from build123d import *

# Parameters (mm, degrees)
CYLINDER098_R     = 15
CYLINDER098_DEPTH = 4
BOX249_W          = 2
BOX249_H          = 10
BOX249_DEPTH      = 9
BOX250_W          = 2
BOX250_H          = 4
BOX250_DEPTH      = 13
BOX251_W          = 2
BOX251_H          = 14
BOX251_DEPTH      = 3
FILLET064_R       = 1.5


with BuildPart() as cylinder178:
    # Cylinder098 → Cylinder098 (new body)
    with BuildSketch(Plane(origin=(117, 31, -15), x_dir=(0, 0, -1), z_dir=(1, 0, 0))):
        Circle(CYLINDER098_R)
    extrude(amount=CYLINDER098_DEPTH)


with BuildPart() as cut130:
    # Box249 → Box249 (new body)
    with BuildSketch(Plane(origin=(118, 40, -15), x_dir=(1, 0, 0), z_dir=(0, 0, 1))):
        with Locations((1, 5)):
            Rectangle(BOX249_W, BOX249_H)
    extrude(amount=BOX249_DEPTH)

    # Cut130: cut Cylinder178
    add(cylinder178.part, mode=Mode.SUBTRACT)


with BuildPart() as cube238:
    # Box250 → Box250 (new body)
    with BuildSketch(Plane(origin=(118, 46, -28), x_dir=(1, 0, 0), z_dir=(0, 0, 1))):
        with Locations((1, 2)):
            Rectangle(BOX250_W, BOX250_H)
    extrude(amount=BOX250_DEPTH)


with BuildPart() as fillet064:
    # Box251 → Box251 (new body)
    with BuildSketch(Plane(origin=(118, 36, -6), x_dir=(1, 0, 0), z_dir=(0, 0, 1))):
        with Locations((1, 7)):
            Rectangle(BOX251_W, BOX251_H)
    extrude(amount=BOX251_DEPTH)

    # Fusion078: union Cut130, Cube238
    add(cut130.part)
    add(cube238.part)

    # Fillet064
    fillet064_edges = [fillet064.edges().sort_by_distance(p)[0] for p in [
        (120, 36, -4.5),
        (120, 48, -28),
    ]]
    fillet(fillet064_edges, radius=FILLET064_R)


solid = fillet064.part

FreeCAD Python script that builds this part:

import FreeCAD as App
import Part
import Sketcher

V = App.Vector
Q = App.Units.Quantity


def edges_at(feature, points):
    """Names of the edges that pass closest to the given points."""
    edges = feature.Shape.Edges
    near = lambda p: min(range(len(edges)), key=lambda i: edges[i].distToShape(Part.Vertex(*p))[0])
    return sorted({f"Edge{near(p) + 1}" for p in points})


def add_polygon(sketch, points):
    """Adds a closed chain of lines whose ends are joined by coincident constraints."""
    first, n = sketch.GeometryCount, len(points)
    for a, b in zip(points, points[1:] + points[:1]):
        sketch.addGeometry(Part.LineSegment(App.Vector(*a, 0), App.Vector(*b, 0)), False)
    for i in range(n):
        sketch.addConstraint(Sketcher.Constraint("Coincident", first + i, 2, first + (i + 1) % n, 1))

doc = App.newDocument("Part")
body = doc.addObject("PartDesign::Body", "Body")

# Sketch on YZ plane
sketch1 = body.newObject("Sketcher::SketchObject", "Sketch")
sketch1.AttachmentSupport = (doc.getObject("YZ_Plane"), [""])
sketch1.MapMode = "FlatFace"
sketch1.AttachmentOffset = App.Placement(V(0, 0, 117), App.Rotation())
sketch1.addGeometry(Part.Circle(V(31, -15, 0), V(0, 0, 1), 15), False)
sketch1.addConstraint([
    Sketcher.Constraint("Diameter", 0, Q("30 mm")),
    Sketcher.Constraint("DistanceX", -1, 1, 0, 3, Q("31 mm")),
    Sketcher.Constraint("DistanceY", 0, 3, -1, 1, Q("15 mm")),
])
pad1 = body.newObject("PartDesign::Pad", "Pad")
pad1.Profile = sketch1
pad1.Length = 4
body2 = doc.addObject("PartDesign::Body", "Body001")

# Sketch on XY plane
sketch2 = body2.newObject("Sketcher::SketchObject", "Sketch001")
sketch2.AttachmentSupport = (doc.getObject("XY_Plane001"), [""])
sketch2.MapMode = "FlatFace"
sketch2.AttachmentOffset = App.Placement(V(0, 0, -15), App.Rotation())
add_polygon(sketch2, [(118, 50), (118, 40), (120, 40), (120, 50)])  # lines 0-3
sketch2.addConstraint([
    Sketcher.Constraint("Vertical", 0),
    Sketcher.Constraint("Horizontal", 1),
    Sketcher.Constraint("Vertical", 2),
    Sketcher.Constraint("Horizontal", 3),
    Sketcher.Constraint("DistanceX", 1, 1, 1, 2, Q("2 mm")),
    Sketcher.Constraint("DistanceY", 0, 2, 0, 1, Q("10 mm")),
    Sketcher.Constraint("DistanceX", -1, 1, 0, 2, Q("118 mm")),
    Sketcher.Constraint("DistanceY", -1, 1, 0, 2, Q("40 mm")),
])
pad2 = body2.newObject("PartDesign::Pad", "Pad001")
pad2.Profile = sketch2
pad2.Length = 9
doc.recompute()

boolean = body2.newObject("PartDesign::Boolean", "Boolean")
boolean.Type = "Cut"
boolean.addObjects([body])
body3 = doc.addObject("PartDesign::Body", "Body002")

# Sketch on XY plane
sketch3 = body3.newObject("Sketcher::SketchObject", "Sketch002")
sketch3.AttachmentSupport = (doc.getObject("XY_Plane002"), [""])
sketch3.MapMode = "FlatFace"
sketch3.AttachmentOffset = App.Placement(V(0, 0, -28), App.Rotation())
add_polygon(sketch3, [(118, 50), (118, 46), (120, 46), (120, 50)])  # lines 0-3
sketch3.addConstraint([
    Sketcher.Constraint("Vertical", 0),
    Sketcher.Constraint("Horizontal", 1),
    Sketcher.Constraint("Vertical", 2),
    Sketcher.Constraint("Horizontal", 3),
    Sketcher.Constraint("DistanceX", 1, 1, 1, 2, Q("2 mm")),
    Sketcher.Constraint("DistanceY", 0, 2, 0, 1, Q("4 mm")),
    Sketcher.Constraint("DistanceX", -1, 1, 0, 2, Q("118 mm")),
    Sketcher.Constraint("DistanceY", -1, 1, 0, 2, Q("46 mm")),
])
pad3 = body3.newObject("PartDesign::Pad", "Pad002")
pad3.Profile = sketch3
pad3.Length = 13
body4 = doc.addObject("PartDesign::Body", "Body003")

# Sketch on XY plane
sketch4 = body4.newObject("Sketcher::SketchObject", "Sketch003")
sketch4.AttachmentSupport = (doc.getObject("XY_Plane003"), [""])
sketch4.MapMode = "FlatFace"
sketch4.AttachmentOffset = App.Placement(V(0, 0, -6), App.Rotation())
add_polygon(sketch4, [(118, 50), (118, 36), (120, 36), (120, 50)])  # lines 0-3
sketch4.addConstraint([
    Sketcher.Constraint("Vertical", 0),
    Sketcher.Constraint("Horizontal", 1),
    Sketcher.Constraint("Vertical", 2),
    Sketcher.Constraint("Horizontal", 3),
    Sketcher.Constraint("DistanceX", 1, 1, 1, 2, Q("2 mm")),
    Sketcher.Constraint("DistanceY", 0, 2, 0, 1, Q("14 mm")),
    Sketcher.Constraint("DistanceX", -1, 1, 0, 2, Q("118 mm")),
    Sketcher.Constraint("DistanceY", -1, 1, 0, 2, Q("36 mm")),
])
pad4 = body4.newObject("PartDesign::Pad", "Pad003")
pad4.Profile = sketch4
pad4.Length = 3
doc.recompute()

boolean2 = body4.newObject("PartDesign::Boolean", "Boolean001")
boolean2.Type = "Fuse"
boolean2.addObjects([body2])
doc.recompute()

boolean3 = body4.newObject("PartDesign::Boolean", "Boolean002")
boolean3.Type = "Fuse"
boolean3.addObjects([body3])
doc.recompute()

fillet = body4.newObject("PartDesign::Fillet", "Fillet")
fillet.Base = (boolean3, edges_at(boolean3, [(120, 36, -4.5), (120, 48, -28)]))
fillet.Radius = 1.5

doc.recompute()
